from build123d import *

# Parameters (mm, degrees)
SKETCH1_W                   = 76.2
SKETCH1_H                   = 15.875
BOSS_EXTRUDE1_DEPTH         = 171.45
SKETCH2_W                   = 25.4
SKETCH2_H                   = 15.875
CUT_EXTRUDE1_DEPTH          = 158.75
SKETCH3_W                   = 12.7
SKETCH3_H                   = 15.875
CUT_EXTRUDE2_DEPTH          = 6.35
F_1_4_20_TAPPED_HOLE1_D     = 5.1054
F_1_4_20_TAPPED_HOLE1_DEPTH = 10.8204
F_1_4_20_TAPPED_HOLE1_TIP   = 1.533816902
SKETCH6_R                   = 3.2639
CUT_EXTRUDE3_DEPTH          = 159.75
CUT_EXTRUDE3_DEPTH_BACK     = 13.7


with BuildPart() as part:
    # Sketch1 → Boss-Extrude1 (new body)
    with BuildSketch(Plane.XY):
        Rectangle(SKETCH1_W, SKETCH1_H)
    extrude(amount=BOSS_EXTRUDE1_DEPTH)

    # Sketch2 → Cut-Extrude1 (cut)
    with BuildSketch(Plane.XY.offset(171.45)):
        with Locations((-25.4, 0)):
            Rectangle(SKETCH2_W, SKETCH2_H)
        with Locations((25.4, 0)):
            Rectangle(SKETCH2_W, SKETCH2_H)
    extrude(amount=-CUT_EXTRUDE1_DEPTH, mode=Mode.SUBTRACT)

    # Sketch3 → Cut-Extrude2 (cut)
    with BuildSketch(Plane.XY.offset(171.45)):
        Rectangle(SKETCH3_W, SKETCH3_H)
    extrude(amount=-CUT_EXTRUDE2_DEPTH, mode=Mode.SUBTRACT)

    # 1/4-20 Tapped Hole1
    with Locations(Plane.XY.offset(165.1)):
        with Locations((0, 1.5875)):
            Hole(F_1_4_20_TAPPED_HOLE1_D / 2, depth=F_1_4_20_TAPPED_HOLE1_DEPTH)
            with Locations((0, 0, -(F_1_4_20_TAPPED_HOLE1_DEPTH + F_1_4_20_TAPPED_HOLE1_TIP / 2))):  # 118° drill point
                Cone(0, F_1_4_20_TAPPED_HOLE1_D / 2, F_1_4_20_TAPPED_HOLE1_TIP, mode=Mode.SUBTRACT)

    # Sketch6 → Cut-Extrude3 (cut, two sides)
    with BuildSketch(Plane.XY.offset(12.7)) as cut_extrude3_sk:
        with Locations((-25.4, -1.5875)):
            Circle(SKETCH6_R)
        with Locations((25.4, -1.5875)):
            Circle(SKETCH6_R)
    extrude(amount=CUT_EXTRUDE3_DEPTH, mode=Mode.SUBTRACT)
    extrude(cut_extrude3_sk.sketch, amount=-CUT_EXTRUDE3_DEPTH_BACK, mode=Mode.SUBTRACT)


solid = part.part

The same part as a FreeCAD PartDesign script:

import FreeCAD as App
import Part
import Sketcher
from FreeCAD import Vector
Q = App.Units.Quantity

doc = App.newDocument("Part")
params = doc.addObject("Spreadsheet::Sheet", "Params")
for row, (alias, value) in enumerate([
    ("sketch1_width", "3 in"),
    ("sketch1_height", "0.625 in"),
    ("pad1_length", "6.75 in"),
    ("sketch2_width", "1 in"),
    ("sketch2_height", "0.625 in"),
    ("pocket1_length", "6.25 in"),
    ("sketch3_width", "0.5 in"),
    ("sketch3_height", "0.625 in"),
    ("pocket2_length", "0.25 in"),
    ("sketch4_diameter", "0.201 in"),
    ("hole_diameter", "0.201 in"),
    ("hole_depth", "0.426 in"),
    ("sketch5_diameter", "0.257 in"),
], start=1):
    params.set(f"A{row}", alias)
    params.set(f"B{row}", "=" + value)
    params.setAlias(f"B{row}", alias)

body = doc.addObject("PartDesign::Body", "Body")

# Sketch on XY plane
sketch1 = body.newObject("Sketcher::SketchObject", "Sketch")
sketch1.AttachmentSupport = (doc.getObject("XY_Plane"), [""])
sketch1.MapMode = "FlatFace"
sketch1.addGeometry([
    Part.LineSegment(Vector(-38, 8, 0), Vector(-38, -8, 0)),
    Part.LineSegment(Vector(-38, -8, 0), Vector(38, -8, 0)),
    Part.LineSegment(Vector(38, -8, 0), Vector(38, 8, 0)),
    Part.LineSegment(Vector(38, 8, 0), Vector(-38, 8, 0)),
], False)
sketch1.addConstraint([
    Sketcher.Constraint("Coincident", 0, 2, 1, 1),
    Sketcher.Constraint("Coincident", 1, 2, 2, 1),
    Sketcher.Constraint("Coincident", 2, 2, 3, 1),
    Sketcher.Constraint("Coincident", 3, 2, 0, 1),
    Sketcher.Constraint("Vertical", 0),
    Sketcher.Constraint("Horizontal", 1),
    Sketcher.Constraint("Vertical", 2),
    Sketcher.Constraint("Horizontal", 3),
    Sketcher.Constraint("Symmetric", 0, 2, 2, 2, -1, 1),
    Sketcher.Constraint("DistanceX", 1, 1, 1, 2, Q("3 in")),
    Sketcher.Constraint("DistanceY", 0, 2, 0, 1, Q("0.625 in")),
])
sketch1.setExpression("Constraints[9]", "Params.sketch1_width")
sketch1.setExpression("Constraints[10]", "Params.sketch1_height")
pad1 = body.newObject("PartDesign::Pad", "Pad")
pad1.Profile = sketch1
pad1.setExpression("Length", "Params.pad1_length")

# Sketch on XY plane
sketch2 = body.newObject("Sketcher::SketchObject", "Sketch001")
sketch2.AttachmentSupport = (doc.getObject("XY_Plane"), [""])
sketch2.MapMode = "FlatFace"
sketch2.AttachmentOffset = App.Placement(Vector(0, 0, 6.75 * 25.4), App.Rotation())
sketch2.addGeometry([
    Part.LineSegment(Vector(-38, 8, 0), Vector(-38, -8, 0)),  # 0
    Part.LineSegment(Vector(-38, -8, 0), Vector(-13, -8, 0)),  # 1
    Part.LineSegment(Vector(-13, -8, 0), Vector(-13, 8, 0)),  # 2
    Part.LineSegment(Vector(-13, 8, 0), Vector(-38, 8, 0)),  # 3
    Part.LineSegment(Vector(13, 8, 0), Vector(13, -8, 0)),  # 4
    Part.LineSegment(Vector(13, -8, 0), Vector(38, -8, 0)),  # 5
    Part.LineSegment(Vector(38, -8, 0), Vector(38, 8, 0)),  # 6
    Part.LineSegment(Vector(38, 8, 0), Vector(13, 8, 0)),  # 7
], False)
sketch2.addConstraint([
    Sketcher.Constraint("Coincident", 0, 2, 1, 1),
    Sketcher.Constraint("Coincident", 1, 2, 2, 1),
    Sketcher.Constraint("Coincident", 2, 2, 3, 1),
    Sketcher.Constraint("Coincident", 3, 2, 0, 1),
    Sketcher.Constraint("Coincident", 4, 2, 5, 1),
    Sketcher.Constraint("Coincident", 5, 2, 6, 1),
    Sketcher.Constraint("Coincident", 6, 2, 7, 1),
    Sketcher.Constraint("Coincident", 7, 2, 4, 1),
    Sketcher.Constraint("Vertical", 0),
    Sketcher.Constraint("Horizontal", 1),
    Sketcher.Constraint("Vertical", 2),
    Sketcher.Constraint("Horizontal", 3),
    Sketcher.Constraint("Vertical", 4),
    Sketcher.Constraint("Horizontal", 5),
    Sketcher.Constraint("Vertical", 6),
    Sketcher.Constraint("Horizontal", 7),
    Sketcher.Constraint("Symmetric", 2, 2, 4, 2, -1, 1),
    Sketcher.Constraint("Symmetric", 0, 2, 6, 2, -1, 1),
    Sketcher.Constraint("Horizontal", 1, 2, 4, 2),
    Sketcher.Constraint("DistanceX", 1, 1, 1, 2, Q("1 in")),
    Sketcher.Constraint("DistanceX", 1, 2, 4, 2, Q("1 in")),
    Sketcher.Constraint("DistanceY", 0, 2, 0, 1, Q("0.625 in")),
])
sketch2.setExpression("Constraints[19]", "Params.sketch2_width")
sketch2.setExpression("Constraints[21]", "Params.sketch2_height")
pocket1 = body.newObject("PartDesign::Pocket", "Pocket")
pocket1.Profile = sketch2
pocket1.setExpression("Length", "Params.pocket1_length")

# Sketch on XY plane
sketch3 = body.newObject("Sketcher::SketchObject", "Sketch002")
sketch3.AttachmentSupport = (doc.getObject("XY_Plane"), [""])
sketch3.MapMode = "FlatFace"
sketch3.AttachmentOffset = App.Placement(Vector(0, 0, 6.75 * 25.4), App.Rotation())
sketch3.addGeometry([
    Part.LineSegment(Vector(-6, 8, 0), Vector(-6, -8, 0)),
    Part.LineSegment(Vector(-6, -8, 0), Vector(6, -8, 0)),
    Part.LineSegment(Vector(6, -8, 0), Vector(6, 8, 0)),
    Part.LineSegment(Vector(6, 8, 0), Vector(-6, 8, 0)),
], False)
sketch3.addConstraint([
    Sketcher.Constraint("Coincident", 0, 2, 1, 1),
    Sketcher.Constraint("Coincident", 1, 2, 2, 1),
    Sketcher.Constraint("Coincident", 2, 2, 3, 1),
    Sketcher.Constraint("Coincident", 3, 2, 0, 1),
    Sketcher.Constraint("Vertical", 0),
    Sketcher.Constraint("Horizontal", 1),
    Sketcher.Constraint("Vertical", 2),
    Sketcher.Constraint("Horizontal", 3),
    Sketcher.Constraint("Symmetric", 0, 2, 2, 2, -1, 1),
    Sketcher.Constraint("DistanceX", 1, 1, 1, 2, Q("0.5 in")),
    Sketcher.Constraint("DistanceY", 0, 2, 0, 1, Q("0.625 in")),
])
sketch3.setExpression("Constraints[9]", "Params.sketch3_width")
sketch3.setExpression("Constraints[10]", "Params.sketch3_height")
pocket2 = body.newObject("PartDesign::Pocket", "Pocket001")
pocket2.Profile = sketch3
pocket2.setExpression("Length", "Params.pocket2_length")

# Sketch on XY plane
sketch4 = body.newObject("Sketcher::SketchObject", "Sketch003")
sketch4.AttachmentSupport = (doc.getObject("XY_Plane"), [""])
sketch4.MapMode = "FlatFace"
sketch4.AttachmentOffset = App.Placement(Vector(0, 0, 6.5 * 25.4), App.Rotation())
sketch4.addGeometry(Part.Circle(Vector(0, 1.6, 0), Vector(0, 0, 1), 2.6), False)
sketch4.addConstraint([
    Sketcher.Constraint("PointOnObject", 0, 3, -2),
    Sketcher.Constraint("Diameter", 0, Q("0.201 in")),
    Sketcher.Constraint("DistanceY", -1, 1, 0, 3, Q("0.0625 in")),
])
sketch4.setExpression("Constraints[1]", "Params.sketch4_diameter")
doc.recompute()
hole = body.newObject("PartDesign::Hole", "Hole")
hole.Profile = sketch4
hole.ThreadType = "None"
hole.setExpression("Diameter", "Params.hole_diameter")
hole.DepthType = "Dimension"
hole.setExpression("Depth", "Params.hole_depth")
hole.DrillPoint = "Angled"
hole.DrillPointAngle = 118

# Sketch on XY plane
sketch5 = body.newObject("Sketcher::SketchObject", "Sketch004")
sketch5.AttachmentSupport = (doc.getObject("XY_Plane"), [""])
sketch5.MapMode = "FlatFace"
sketch5.AttachmentOffset = App.Placement(Vector(0, 0, 0.5 * 25.4), App.Rotation())
sketch5.addGeometry([
    Part.Circle(Vector(-25.4, -1.6, 0), Vector(0, 0, 1), 3.3),
    Part.Circle(Vector(25.4, -1.6, 0), Vector(0, 0, 1), 3.3),
], False)
sketch5.addConstraint([
    Sketcher.Constraint("Equal", 0, 1),
    Sketcher.Constraint("Symmetric", 0, 3, 1, 3, -2),
    Sketcher.Constraint("Diameter", 0, Q("0.257 in")),
    Sketcher.Constraint("DistanceX", 0, 3, -1, 1, Q("1 in")),
    Sketcher.Constraint("DistanceY", 0, 3, -1, 1, Q("0.0625 in")),
])
sketch5.setExpression("Constraints[2]", "Params.sketch5_diameter")
pocket3 = body.newObject("PartDesign::Pocket", "Pocket002")
pocket3.Profile = sketch5
pocket3.Type = "ThroughAll"
pocket3.Midplane = True

doc.recompute()
